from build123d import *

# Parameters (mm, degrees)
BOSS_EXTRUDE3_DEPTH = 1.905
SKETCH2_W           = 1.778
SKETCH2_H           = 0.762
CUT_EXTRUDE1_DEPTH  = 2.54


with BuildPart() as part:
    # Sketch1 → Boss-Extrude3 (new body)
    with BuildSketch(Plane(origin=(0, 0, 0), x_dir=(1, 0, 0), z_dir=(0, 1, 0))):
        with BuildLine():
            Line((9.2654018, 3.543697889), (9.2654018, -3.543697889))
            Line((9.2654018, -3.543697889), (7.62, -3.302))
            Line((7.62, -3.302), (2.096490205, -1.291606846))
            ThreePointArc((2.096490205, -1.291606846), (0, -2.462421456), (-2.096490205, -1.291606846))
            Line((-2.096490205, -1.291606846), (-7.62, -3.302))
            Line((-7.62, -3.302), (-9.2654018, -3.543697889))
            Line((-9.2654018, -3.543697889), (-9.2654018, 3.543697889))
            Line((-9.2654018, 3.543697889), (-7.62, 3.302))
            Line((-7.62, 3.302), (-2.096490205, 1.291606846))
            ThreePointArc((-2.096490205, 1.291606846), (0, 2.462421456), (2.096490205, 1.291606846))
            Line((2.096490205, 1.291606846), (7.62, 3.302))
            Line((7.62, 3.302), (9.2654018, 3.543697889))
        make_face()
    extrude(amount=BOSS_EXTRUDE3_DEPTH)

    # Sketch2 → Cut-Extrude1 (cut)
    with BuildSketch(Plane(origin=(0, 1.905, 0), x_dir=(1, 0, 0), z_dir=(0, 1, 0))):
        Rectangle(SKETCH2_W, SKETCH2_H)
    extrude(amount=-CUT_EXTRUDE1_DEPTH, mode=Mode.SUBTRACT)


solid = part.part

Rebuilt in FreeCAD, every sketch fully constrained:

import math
import FreeCAD as App
import Part
import Sketcher

V = App.Vector
Q = App.Units.Quantity

doc = App.newDocument("Part")
params = doc.addObject("Spreadsheet::Sheet", "Params")
for row, (alias, value) in enumerate([
    ("pad1_length", "0.075 in"),
    ("sketch2_width", "0.07 in"),
    ("sketch2_height", "0.03 in"),
    ("pocket1_length", "0.1 in"),
], start=1):
    params.set(f"A{row}", alias)
    params.set(f"B{row}", "=" + value)
    params.setAlias(f"B{row}", alias)

body = doc.addObject("PartDesign::Body", "Body")

# Sketch on XZ plane
sketch1 = doc.addObject("Sketcher::SketchObject", "Sketch")
body.addObject(sketch1)
sketch1.AttachmentSupport = (doc.XZ_Plane, [""])
sketch1.MapMode = "FlatFace"
sketch1.addGeometry([
    Part.LineSegment(V(9.3, 3.5, 0), V(9.3, -3.5, 0)),  # 0
    Part.LineSegment(V(9.3, -3.5, 0), V(7.6, -3.3, 0)),  # 1
    Part.LineSegment(V(7.6, -3.3, 0), V(2.1, -1.3, 0)),  # 2
    Part.ArcOfCircle(Part.Circle(V(0, 0, 0), V(0, 0, 1), 2.5), math.radians(-148), math.radians(-32)),  # 3
    Part.LineSegment(V(-2.1, -1.3, 0), V(-7.6, -3.3, 0)),  # 4
    Part.LineSegment(V(-7.6, -3.3, 0), V(-9.3, -3.5, 0)),  # 5
    Part.LineSegment(V(-9.3, -3.5, 0), V(-9.3, 3.5, 0)),  # 6
    Part.LineSegment(V(-9.3, 3.5, 0), V(-7.6, 3.3, 0)),  # 7
    Part.LineSegment(V(-7.6, 3.3, 0), V(-2.1, 1.3, 0)),  # 8
    Part.ArcOfCircle(Part.Circle(V(0, 0, 0), V(0, 0, 1), 2.5), math.radians(32), math.radians(148)),  # 9
    Part.LineSegment(V(2.1, 1.3, 0), V(7.6, 3.3, 0)),  # 10
    Part.LineSegment(V(7.6, 3.3, 0), V(9.3, 3.5, 0)),  # 11
], False)
sketch1.addConstraint([
    Sketcher.Constraint("Coincident", 0, 2, 1, 1),
    Sketcher.Constraint("Coincident", 1, 2, 2, 1),
    Sketcher.Constraint("Coincident", 2, 2, 3, 2),
    Sketcher.Constraint("Coincident", 3, 1, 4, 1),
    Sketcher.Constraint("Coincident", 4, 2, 5, 1),
    Sketcher.Constraint("Coincident", 5, 2, 6, 1),
    Sketcher.Constraint("Coincident", 6, 2, 7, 1),
    Sketcher.Constraint("Coincident", 7, 2, 8, 1),
    Sketcher.Constraint("Coincident", 8, 2, 9, 2),
    Sketcher.Constraint("Coincident", 9, 1, 10, 1),
    Sketcher.Constraint("Coincident", 10, 2, 11, 1),
    Sketcher.Constraint("Coincident", 11, 2, 0, 1),
    Sketcher.Constraint("Vertical", 0),
    Sketcher.Constraint("Vertical", 6),
    Sketcher.Constraint("Coincident", 3, 3, -1, 1),
    Sketcher.Constraint("Coincident", 9, 3, -1, 1),
    Sketcher.Constraint("Equal", 3, 9),
    Sketcher.Constraint("Symmetric", 0, 2, 6, 2, -1, 1),
    Sketcher.Constraint("Symmetric", 1, 2, 7, 2, -1, 1),
    Sketcher.Constraint("Symmetric", 4, 2, 10, 2, -1, 1),
    Sketcher.Constraint("Symmetric", 1, 2, 4, 2, -2),
    Sketcher.Constraint("Parallel", 2, 8),
    Sketcher.Constraint("Parallel", 4, 10),
    Sketcher.Constraint("Parallel", 5, 11),
    Sketcher.Constraint("Horizontal", 2, 2, 3, 1),
    Sketcher.Constraint("Horizontal", 0, 2, 5, 2),
    Sketcher.Constraint("Angle", 2, Q("160 deg")),
    Sketcher.Constraint("DistanceX", -1, 1, 1, 2, Q("0.3 in")),
    Sketcher.Constraint("DistanceY", 1, 2, -1, 1, Q("0.13 in")),
    Sketcher.Constraint("Radius", 3, 2.462421),
    Sketcher.Constraint("DistanceX", -1, 1, 0, 2, 9.265402),
    Sketcher.Constraint("Distance", 1, 1.663059),
])
pad1 = doc.addObject("PartDesign::Pad", "Pad")
body.addObject(pad1)
pad1.Profile = sketch1
pad1.setExpression("Length", "Params.pad1_length")
pad1.Reversed = True

# Sketch on XZ plane
sketch2 = doc.addObject("Sketcher::SketchObject", "Sketch001")
body.addObject(sketch2)
sketch2.AttachmentSupport = (doc.XZ_Plane, [""])
sketch2.MapMode = "FlatFace"
sketch2.AttachmentOffset = App.Placement(V(0, 0, -0.075 * 25.4), App.Rotation())
sketch2.addGeometry([
    Part.LineSegment(V(-0.9, -0.4, 0), V(-0.9, 0.4, 0)),
    Part.LineSegment(V(-0.9, 0.4, 0), V(0.9, 0.4, 0)),
    Part.LineSegment(V(0.9, 0.4, 0), V(0.9, -0.4, 0)),
    Part.LineSegment(V(0.9, -0.4, 0), V(-0.9, -0.4, 0)),
], False)
sketch2.addConstraint([
    Sketcher.Constraint("Coincident", 0, 2, 1, 1),
    Sketcher.Constraint("Coincident", 1, 2, 2, 1),
    Sketcher.Constraint("Coincident", 2, 2, 3, 1),
    Sketcher.Constraint("Coincident", 3, 2, 0, 1),
    Sketcher.Constraint("Vertical", 0),
    Sketcher.Constraint("Horizontal", 1),
    Sketcher.Constraint("Vertical", 2),
    Sketcher.Constraint("Horizontal", 3),
    Sketcher.Constraint("Symmetric", 0, 2, 2, 2, -1, 1),
    Sketcher.Constraint("DistanceX", 1, 1, 1, 2, Q("0.07 in")),
    Sketcher.Constraint("DistanceY", 0, 1, 0, 2, Q("0.03 in")),
])
sketch2.setExpression("Constraints[9]", "Params.sketch2_width")
sketch2.setExpression("Constraints[10]", "Params.sketch2_height")
pocket1 = doc.addObject("PartDesign::Pocket", "Pocket")
body.addObject(pocket1)
pocket1.Profile = sketch2
pocket1.setExpression("Length", "Params.pocket1_length")
pocket1.Reversed = True

doc.recompute()
